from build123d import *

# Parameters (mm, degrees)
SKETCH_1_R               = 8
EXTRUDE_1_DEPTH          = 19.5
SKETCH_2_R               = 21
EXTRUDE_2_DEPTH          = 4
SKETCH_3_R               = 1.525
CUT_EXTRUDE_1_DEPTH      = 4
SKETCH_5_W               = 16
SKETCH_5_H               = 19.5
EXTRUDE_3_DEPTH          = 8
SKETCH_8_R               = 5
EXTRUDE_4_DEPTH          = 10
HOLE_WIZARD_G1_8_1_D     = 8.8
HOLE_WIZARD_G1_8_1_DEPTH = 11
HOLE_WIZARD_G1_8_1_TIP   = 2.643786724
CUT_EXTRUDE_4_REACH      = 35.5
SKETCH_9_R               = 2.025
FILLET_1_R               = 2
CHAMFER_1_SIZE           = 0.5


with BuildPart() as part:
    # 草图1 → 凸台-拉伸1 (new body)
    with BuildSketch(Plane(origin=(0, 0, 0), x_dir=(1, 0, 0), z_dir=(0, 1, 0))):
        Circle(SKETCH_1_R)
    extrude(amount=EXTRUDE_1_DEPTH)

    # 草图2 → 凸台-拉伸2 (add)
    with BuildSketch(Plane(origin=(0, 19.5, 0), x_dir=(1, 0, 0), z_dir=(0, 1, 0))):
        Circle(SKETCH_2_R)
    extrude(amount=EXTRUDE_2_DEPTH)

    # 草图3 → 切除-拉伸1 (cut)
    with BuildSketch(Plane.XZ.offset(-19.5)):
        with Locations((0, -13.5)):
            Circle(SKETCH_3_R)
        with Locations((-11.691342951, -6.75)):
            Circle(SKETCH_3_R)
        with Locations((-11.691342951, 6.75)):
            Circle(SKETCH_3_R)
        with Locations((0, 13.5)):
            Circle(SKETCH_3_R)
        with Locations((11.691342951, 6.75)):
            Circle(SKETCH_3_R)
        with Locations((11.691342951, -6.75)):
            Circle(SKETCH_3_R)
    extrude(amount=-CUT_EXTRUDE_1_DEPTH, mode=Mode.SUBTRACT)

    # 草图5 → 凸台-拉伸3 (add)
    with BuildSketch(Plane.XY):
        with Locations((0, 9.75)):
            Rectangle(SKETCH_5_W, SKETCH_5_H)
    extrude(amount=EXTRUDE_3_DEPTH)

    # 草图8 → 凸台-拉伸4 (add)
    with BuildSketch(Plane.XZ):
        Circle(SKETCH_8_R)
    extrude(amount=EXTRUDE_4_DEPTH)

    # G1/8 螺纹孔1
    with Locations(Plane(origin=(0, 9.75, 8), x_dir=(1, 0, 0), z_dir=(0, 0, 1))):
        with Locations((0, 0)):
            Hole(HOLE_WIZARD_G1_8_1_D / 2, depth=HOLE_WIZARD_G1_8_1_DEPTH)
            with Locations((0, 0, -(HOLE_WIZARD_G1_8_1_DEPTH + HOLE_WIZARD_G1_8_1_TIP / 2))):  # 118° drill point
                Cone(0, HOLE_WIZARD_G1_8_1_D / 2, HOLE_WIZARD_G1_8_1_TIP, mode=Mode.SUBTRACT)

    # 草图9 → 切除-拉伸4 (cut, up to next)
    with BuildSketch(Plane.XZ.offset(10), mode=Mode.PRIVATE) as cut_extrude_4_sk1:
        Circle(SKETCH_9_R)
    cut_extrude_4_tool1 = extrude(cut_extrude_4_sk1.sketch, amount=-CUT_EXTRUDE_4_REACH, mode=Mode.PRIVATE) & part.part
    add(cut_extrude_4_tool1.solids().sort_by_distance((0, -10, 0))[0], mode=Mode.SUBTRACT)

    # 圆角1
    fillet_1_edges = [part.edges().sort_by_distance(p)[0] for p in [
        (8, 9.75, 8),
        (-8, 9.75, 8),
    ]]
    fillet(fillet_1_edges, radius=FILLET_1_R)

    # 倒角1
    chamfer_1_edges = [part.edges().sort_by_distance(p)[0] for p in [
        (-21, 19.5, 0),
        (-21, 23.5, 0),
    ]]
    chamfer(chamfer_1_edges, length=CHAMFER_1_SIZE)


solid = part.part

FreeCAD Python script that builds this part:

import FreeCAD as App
import Part
import Sketcher
from FreeCAD import Vector


def edges_at(feature, points):
    """Names of the edges that pass closest to the given points."""
    edges = feature.Shape.Edges
    near = lambda p: min(range(len(edges)), key=lambda i: edges[i].distToShape(Part.Vertex(*p))[0])
    return sorted({f"Edge{near(p) + 1}" for p in points})

doc = App.newDocument("Part")
body = doc.addObject("PartDesign::Body", "Body")

# Sketch on XZ plane
sketch1 = body.newObject("Sketcher::SketchObject", "Sketch")
sketch1.AttachmentSupport = (doc.getObject("XZ_Plane"), [""])
sketch1.MapMode = "FlatFace"
sketch1.addGeometry(Part.Circle(Vector(0, 0, 0), Vector(0, 0, 1), 8), False)
sketch1.addConstraint(Sketcher.Constraint("Coincident", 0, 3, -1, 1))
sketch1.addConstraint(Sketcher.Constraint("Diameter", 0, 16.0))
pad1 = body.newObject("PartDesign::Pad", "Pad")
pad1.Profile = sketch1
pad1.Length = 19.5
pad1.Reversed = True

# Sketch on XZ plane
sketch2 = body.newObject("Sketcher::SketchObject", "Sketch001")
sketch2.AttachmentSupport = (doc.getObject("XZ_Plane"), [""])
sketch2.MapMode = "FlatFace"
sketch2.AttachmentOffset = App.Placement(Vector(0, 0, -19.5), App.Rotation())
sketch2.addGeometry(Part.Circle(Vector(0, 0, 0), Vector(0, 0, 1), 21), False)
sketch2.addConstraint(Sketcher.Constraint("Coincident", 0, 3, -1, 1))
sketch2.addConstraint(Sketcher.Constraint("Diameter", 0, 42.0))
pad2 = body.newObject("PartDesign::Pad", "Pad001")
pad2.Profile = sketch2
pad2.Length = 4
pad2.Reversed = True

# Sketch on XZ plane
sketch3 = body.newObject("Sketcher::SketchObject", "Sketch002")
sketch3.AttachmentSupport = (doc.getObject("XZ_Plane"), [""])
sketch3.MapMode = "FlatFace"
sketch3.AttachmentOffset = App.Placement(Vector(0, 0, -19.5), App.Rotation())
sketch3.addGeometry(Part.Circle(Vector(0, -13.5, 0), Vector(0, 0, 1), 1.5), False)
sketch3.addGeometry(Part.Circle(Vector(-11.7, -6.8, 0), Vector(0, 0, 1), 1.5), False)
sketch3.addGeometry(Part.Circle(Vector(-11.7, 6.8, 0), Vector(0, 0, 1), 1.5), False)
sketch3.addGeometry(Part.Circle(Vector(0, 13.5, 0), Vector(0, 0, 1), 1.5), False)
sketch3.addGeometry(Part.Circle(Vector(11.7, 6.8, 0), Vector(0, 0, 1), 1.5), False)
sketch3.addGeometry(Part.Circle(Vector(11.7, -6.8, 0), Vector(0, 0, 1), 1.5), False)
sketch3.addConstraint(Sketcher.Constraint("Equal", 0, 1))
sketch3.addConstraint(Sketcher.Constraint("Equal", 1, 2))
sketch3.addConstraint(Sketcher.Constraint("Equal", 2, 3))
sketch3.addConstraint(Sketcher.Constraint("Equal", 3, 4))
sketch3.addConstraint(Sketcher.Constraint("Equal", 4, 5))
sketch3.addConstraint(Sketcher.Constraint("Symmetric", 0, 3, 3, 3, -1, 1))
sketch3.addConstraint(Sketcher.Constraint("Symmetric", 1, 3, 4, 3, -1, 1))
sketch3.addConstraint(Sketcher.Constraint("Symmetric", 2, 3, 5, 3, -1, 1))
sketch3.addConstraint(Sketcher.Constraint("Symmetric", 2, 3, 4, 3, -2))
sketch3.addConstraint(Sketcher.Constraint("PointOnObject", 0, 3, -2))
sketch3.addConstraint(Sketcher.Constraint("Diameter", 0, 3.05))
sketch3.addConstraint(Sketcher.Constraint("DistanceY", 0, 3, 3, 3, 27.0))
sketch3.addConstraint(Sketcher.Constraint("DistanceY", 1, 3, 2, 3, 13.5))
sketch3.addConstraint(Sketcher.Constraint("DistanceX", 1, 3, -1, 1, 11.691343))
pocket1 = body.newObject("PartDesign::Pocket", "Pocket")
pocket1.Profile = sketch3
pocket1.Length = 4

# Sketch on XY plane
sketch4 = body.newObject("Sketcher::SketchObject", "Sketch003")
sketch4.AttachmentSupport = (doc.getObject("XY_Plane"), [""])
sketch4.MapMode = "FlatFace"
sketch4.addGeometry(Part.LineSegment(Vector(-8, 20, 0), Vector(-8, 0, 0)), False)
sketch4.addGeometry(Part.LineSegment(Vector(-8, 0, 0), Vector(8, 0, 0)), False)
sketch4.addGeometry(Part.LineSegment(Vector(8, 0, 0), Vector(8, 20, 0)), False)
sketch4.addGeometry(Part.LineSegment(Vector(8, 20, 0), Vector(-8, 20, 0)), False)
sketch4.addConstraint(Sketcher.Constraint("Coincident", 0, 2, 1, 1))
sketch4.addConstraint(Sketcher.Constraint("Coincident", 1, 2, 2, 1))
sketch4.addConstraint(Sketcher.Constraint("Coincident", 2, 2, 3, 1))
sketch4.addConstraint(Sketcher.Constraint("Coincident", 3, 2, 0, 1))
sketch4.addConstraint(Sketcher.Constraint("Vertical", 0))
sketch4.addConstraint(Sketcher.Constraint("Horizontal", 1))
sketch4.addConstraint(Sketcher.Constraint("Vertical", 2))
sketch4.addConstraint(Sketcher.Constraint("Horizontal", 3))
sketch4.addConstraint(Sketcher.Constraint("Symmetric", 0, 2, 1, 2, -1, 1))
sketch4.addConstraint(Sketcher.Constraint("DistanceX", 1, 1, 1, 2, 16.0))
sketch4.addConstraint(Sketcher.Constraint("DistanceY", 0, 2, 0, 1, 19.5))
pad3 = body.newObject("PartDesign::Pad", "Pad002")
pad3.Profile = sketch4
pad3.Length = 8

# Sketch on XZ plane
sketch5 = body.newObject("Sketcher::SketchObject", "Sketch004")
sketch5.AttachmentSupport = (doc.getObject("XZ_Plane"), [""])
sketch5.MapMode = "FlatFace"
sketch5.addGeometry(Part.Circle(Vector(0, 0, 0), Vector(0, 0, 1), 5), False)
sketch5.addConstraint(Sketcher.Constraint("Coincident", 0, 3, -1, 1))
sketch5.addConstraint(Sketcher.Constraint("Diameter", 0, 10.0))
pad4 = body.newObject("PartDesign::Pad", "Pad003")
pad4.Profile = sketch5
pad4.Length = 10

# Sketch on XY plane
sketch6 = body.newObject("Sketcher::SketchObject", "Sketch005")
sketch6.AttachmentSupport = (doc.getObject("XY_Plane"), [""])
sketch6.MapMode = "FlatFace"
sketch6.AttachmentOffset = App.Placement(Vector(0, 0, 8), App.Rotation())
sketch6.addGeometry(Part.Circle(Vector(0, 9.8, 0), Vector(0, 0, 1), 4.4), False)
sketch6.addConstraint(Sketcher.Constraint("PointOnObject", 0, 3, -2))
sketch6.addConstraint(Sketcher.Constraint("Diameter", 0, 8.8))
sketch6.addConstraint(Sketcher.Constraint("DistanceY", -1, 1, 0, 3, 9.75))
doc.recompute()
hole = body.newObject("PartDesign::Hole", "Hole")
hole.Profile = sketch6
hole.ThreadType = "None"
hole.Diameter = 8.8
hole.DepthType = "Dimension"
hole.Depth = 11
hole.DrillPoint = "Angled"
hole.DrillPointAngle = 118

# Sketch on XZ plane
sketch7 = body.newObject("Sketcher::SketchObject", "Sketch006")
sketch7.AttachmentSupport = (doc.getObject("XZ_Plane"), [""])
sketch7.MapMode = "FlatFace"
sketch7.AttachmentOffset = App.Placement(Vector(0, 0, 10), App.Rotation())
sketch7.addGeometry(Part.Circle(Vector(0, 0, 0), Vector(0, 0, 1), 2), False)
sketch7.addConstraint(Sketcher.Constraint("Coincident", 0, 3, -1, 1))
sketch7.addConstraint(Sketcher.Constraint("Diameter", 0, 4.05))
pocket2 = body.newObject("PartDesign::Pocket", "Pocket001")
pocket2.Profile = sketch7
pocket2.Length = 15.843675
doc.recompute()

fillet = body.newObject("PartDesign::Fillet", "Fillet")
fillet.Base = (pocket2, edges_at(pocket2, [(8, 9.75, 8), (-8, 9.75, 8)]))
fillet.Radius = 2
doc.recompute()

chamfer = body.newObject("PartDesign::Chamfer", "Chamfer")
chamfer.Base = (fillet, edges_at(fillet, [(-21, 19.5, 0), (-21, 23.5, 0)]))
chamfer.Size = 0.5

doc.recompute()
